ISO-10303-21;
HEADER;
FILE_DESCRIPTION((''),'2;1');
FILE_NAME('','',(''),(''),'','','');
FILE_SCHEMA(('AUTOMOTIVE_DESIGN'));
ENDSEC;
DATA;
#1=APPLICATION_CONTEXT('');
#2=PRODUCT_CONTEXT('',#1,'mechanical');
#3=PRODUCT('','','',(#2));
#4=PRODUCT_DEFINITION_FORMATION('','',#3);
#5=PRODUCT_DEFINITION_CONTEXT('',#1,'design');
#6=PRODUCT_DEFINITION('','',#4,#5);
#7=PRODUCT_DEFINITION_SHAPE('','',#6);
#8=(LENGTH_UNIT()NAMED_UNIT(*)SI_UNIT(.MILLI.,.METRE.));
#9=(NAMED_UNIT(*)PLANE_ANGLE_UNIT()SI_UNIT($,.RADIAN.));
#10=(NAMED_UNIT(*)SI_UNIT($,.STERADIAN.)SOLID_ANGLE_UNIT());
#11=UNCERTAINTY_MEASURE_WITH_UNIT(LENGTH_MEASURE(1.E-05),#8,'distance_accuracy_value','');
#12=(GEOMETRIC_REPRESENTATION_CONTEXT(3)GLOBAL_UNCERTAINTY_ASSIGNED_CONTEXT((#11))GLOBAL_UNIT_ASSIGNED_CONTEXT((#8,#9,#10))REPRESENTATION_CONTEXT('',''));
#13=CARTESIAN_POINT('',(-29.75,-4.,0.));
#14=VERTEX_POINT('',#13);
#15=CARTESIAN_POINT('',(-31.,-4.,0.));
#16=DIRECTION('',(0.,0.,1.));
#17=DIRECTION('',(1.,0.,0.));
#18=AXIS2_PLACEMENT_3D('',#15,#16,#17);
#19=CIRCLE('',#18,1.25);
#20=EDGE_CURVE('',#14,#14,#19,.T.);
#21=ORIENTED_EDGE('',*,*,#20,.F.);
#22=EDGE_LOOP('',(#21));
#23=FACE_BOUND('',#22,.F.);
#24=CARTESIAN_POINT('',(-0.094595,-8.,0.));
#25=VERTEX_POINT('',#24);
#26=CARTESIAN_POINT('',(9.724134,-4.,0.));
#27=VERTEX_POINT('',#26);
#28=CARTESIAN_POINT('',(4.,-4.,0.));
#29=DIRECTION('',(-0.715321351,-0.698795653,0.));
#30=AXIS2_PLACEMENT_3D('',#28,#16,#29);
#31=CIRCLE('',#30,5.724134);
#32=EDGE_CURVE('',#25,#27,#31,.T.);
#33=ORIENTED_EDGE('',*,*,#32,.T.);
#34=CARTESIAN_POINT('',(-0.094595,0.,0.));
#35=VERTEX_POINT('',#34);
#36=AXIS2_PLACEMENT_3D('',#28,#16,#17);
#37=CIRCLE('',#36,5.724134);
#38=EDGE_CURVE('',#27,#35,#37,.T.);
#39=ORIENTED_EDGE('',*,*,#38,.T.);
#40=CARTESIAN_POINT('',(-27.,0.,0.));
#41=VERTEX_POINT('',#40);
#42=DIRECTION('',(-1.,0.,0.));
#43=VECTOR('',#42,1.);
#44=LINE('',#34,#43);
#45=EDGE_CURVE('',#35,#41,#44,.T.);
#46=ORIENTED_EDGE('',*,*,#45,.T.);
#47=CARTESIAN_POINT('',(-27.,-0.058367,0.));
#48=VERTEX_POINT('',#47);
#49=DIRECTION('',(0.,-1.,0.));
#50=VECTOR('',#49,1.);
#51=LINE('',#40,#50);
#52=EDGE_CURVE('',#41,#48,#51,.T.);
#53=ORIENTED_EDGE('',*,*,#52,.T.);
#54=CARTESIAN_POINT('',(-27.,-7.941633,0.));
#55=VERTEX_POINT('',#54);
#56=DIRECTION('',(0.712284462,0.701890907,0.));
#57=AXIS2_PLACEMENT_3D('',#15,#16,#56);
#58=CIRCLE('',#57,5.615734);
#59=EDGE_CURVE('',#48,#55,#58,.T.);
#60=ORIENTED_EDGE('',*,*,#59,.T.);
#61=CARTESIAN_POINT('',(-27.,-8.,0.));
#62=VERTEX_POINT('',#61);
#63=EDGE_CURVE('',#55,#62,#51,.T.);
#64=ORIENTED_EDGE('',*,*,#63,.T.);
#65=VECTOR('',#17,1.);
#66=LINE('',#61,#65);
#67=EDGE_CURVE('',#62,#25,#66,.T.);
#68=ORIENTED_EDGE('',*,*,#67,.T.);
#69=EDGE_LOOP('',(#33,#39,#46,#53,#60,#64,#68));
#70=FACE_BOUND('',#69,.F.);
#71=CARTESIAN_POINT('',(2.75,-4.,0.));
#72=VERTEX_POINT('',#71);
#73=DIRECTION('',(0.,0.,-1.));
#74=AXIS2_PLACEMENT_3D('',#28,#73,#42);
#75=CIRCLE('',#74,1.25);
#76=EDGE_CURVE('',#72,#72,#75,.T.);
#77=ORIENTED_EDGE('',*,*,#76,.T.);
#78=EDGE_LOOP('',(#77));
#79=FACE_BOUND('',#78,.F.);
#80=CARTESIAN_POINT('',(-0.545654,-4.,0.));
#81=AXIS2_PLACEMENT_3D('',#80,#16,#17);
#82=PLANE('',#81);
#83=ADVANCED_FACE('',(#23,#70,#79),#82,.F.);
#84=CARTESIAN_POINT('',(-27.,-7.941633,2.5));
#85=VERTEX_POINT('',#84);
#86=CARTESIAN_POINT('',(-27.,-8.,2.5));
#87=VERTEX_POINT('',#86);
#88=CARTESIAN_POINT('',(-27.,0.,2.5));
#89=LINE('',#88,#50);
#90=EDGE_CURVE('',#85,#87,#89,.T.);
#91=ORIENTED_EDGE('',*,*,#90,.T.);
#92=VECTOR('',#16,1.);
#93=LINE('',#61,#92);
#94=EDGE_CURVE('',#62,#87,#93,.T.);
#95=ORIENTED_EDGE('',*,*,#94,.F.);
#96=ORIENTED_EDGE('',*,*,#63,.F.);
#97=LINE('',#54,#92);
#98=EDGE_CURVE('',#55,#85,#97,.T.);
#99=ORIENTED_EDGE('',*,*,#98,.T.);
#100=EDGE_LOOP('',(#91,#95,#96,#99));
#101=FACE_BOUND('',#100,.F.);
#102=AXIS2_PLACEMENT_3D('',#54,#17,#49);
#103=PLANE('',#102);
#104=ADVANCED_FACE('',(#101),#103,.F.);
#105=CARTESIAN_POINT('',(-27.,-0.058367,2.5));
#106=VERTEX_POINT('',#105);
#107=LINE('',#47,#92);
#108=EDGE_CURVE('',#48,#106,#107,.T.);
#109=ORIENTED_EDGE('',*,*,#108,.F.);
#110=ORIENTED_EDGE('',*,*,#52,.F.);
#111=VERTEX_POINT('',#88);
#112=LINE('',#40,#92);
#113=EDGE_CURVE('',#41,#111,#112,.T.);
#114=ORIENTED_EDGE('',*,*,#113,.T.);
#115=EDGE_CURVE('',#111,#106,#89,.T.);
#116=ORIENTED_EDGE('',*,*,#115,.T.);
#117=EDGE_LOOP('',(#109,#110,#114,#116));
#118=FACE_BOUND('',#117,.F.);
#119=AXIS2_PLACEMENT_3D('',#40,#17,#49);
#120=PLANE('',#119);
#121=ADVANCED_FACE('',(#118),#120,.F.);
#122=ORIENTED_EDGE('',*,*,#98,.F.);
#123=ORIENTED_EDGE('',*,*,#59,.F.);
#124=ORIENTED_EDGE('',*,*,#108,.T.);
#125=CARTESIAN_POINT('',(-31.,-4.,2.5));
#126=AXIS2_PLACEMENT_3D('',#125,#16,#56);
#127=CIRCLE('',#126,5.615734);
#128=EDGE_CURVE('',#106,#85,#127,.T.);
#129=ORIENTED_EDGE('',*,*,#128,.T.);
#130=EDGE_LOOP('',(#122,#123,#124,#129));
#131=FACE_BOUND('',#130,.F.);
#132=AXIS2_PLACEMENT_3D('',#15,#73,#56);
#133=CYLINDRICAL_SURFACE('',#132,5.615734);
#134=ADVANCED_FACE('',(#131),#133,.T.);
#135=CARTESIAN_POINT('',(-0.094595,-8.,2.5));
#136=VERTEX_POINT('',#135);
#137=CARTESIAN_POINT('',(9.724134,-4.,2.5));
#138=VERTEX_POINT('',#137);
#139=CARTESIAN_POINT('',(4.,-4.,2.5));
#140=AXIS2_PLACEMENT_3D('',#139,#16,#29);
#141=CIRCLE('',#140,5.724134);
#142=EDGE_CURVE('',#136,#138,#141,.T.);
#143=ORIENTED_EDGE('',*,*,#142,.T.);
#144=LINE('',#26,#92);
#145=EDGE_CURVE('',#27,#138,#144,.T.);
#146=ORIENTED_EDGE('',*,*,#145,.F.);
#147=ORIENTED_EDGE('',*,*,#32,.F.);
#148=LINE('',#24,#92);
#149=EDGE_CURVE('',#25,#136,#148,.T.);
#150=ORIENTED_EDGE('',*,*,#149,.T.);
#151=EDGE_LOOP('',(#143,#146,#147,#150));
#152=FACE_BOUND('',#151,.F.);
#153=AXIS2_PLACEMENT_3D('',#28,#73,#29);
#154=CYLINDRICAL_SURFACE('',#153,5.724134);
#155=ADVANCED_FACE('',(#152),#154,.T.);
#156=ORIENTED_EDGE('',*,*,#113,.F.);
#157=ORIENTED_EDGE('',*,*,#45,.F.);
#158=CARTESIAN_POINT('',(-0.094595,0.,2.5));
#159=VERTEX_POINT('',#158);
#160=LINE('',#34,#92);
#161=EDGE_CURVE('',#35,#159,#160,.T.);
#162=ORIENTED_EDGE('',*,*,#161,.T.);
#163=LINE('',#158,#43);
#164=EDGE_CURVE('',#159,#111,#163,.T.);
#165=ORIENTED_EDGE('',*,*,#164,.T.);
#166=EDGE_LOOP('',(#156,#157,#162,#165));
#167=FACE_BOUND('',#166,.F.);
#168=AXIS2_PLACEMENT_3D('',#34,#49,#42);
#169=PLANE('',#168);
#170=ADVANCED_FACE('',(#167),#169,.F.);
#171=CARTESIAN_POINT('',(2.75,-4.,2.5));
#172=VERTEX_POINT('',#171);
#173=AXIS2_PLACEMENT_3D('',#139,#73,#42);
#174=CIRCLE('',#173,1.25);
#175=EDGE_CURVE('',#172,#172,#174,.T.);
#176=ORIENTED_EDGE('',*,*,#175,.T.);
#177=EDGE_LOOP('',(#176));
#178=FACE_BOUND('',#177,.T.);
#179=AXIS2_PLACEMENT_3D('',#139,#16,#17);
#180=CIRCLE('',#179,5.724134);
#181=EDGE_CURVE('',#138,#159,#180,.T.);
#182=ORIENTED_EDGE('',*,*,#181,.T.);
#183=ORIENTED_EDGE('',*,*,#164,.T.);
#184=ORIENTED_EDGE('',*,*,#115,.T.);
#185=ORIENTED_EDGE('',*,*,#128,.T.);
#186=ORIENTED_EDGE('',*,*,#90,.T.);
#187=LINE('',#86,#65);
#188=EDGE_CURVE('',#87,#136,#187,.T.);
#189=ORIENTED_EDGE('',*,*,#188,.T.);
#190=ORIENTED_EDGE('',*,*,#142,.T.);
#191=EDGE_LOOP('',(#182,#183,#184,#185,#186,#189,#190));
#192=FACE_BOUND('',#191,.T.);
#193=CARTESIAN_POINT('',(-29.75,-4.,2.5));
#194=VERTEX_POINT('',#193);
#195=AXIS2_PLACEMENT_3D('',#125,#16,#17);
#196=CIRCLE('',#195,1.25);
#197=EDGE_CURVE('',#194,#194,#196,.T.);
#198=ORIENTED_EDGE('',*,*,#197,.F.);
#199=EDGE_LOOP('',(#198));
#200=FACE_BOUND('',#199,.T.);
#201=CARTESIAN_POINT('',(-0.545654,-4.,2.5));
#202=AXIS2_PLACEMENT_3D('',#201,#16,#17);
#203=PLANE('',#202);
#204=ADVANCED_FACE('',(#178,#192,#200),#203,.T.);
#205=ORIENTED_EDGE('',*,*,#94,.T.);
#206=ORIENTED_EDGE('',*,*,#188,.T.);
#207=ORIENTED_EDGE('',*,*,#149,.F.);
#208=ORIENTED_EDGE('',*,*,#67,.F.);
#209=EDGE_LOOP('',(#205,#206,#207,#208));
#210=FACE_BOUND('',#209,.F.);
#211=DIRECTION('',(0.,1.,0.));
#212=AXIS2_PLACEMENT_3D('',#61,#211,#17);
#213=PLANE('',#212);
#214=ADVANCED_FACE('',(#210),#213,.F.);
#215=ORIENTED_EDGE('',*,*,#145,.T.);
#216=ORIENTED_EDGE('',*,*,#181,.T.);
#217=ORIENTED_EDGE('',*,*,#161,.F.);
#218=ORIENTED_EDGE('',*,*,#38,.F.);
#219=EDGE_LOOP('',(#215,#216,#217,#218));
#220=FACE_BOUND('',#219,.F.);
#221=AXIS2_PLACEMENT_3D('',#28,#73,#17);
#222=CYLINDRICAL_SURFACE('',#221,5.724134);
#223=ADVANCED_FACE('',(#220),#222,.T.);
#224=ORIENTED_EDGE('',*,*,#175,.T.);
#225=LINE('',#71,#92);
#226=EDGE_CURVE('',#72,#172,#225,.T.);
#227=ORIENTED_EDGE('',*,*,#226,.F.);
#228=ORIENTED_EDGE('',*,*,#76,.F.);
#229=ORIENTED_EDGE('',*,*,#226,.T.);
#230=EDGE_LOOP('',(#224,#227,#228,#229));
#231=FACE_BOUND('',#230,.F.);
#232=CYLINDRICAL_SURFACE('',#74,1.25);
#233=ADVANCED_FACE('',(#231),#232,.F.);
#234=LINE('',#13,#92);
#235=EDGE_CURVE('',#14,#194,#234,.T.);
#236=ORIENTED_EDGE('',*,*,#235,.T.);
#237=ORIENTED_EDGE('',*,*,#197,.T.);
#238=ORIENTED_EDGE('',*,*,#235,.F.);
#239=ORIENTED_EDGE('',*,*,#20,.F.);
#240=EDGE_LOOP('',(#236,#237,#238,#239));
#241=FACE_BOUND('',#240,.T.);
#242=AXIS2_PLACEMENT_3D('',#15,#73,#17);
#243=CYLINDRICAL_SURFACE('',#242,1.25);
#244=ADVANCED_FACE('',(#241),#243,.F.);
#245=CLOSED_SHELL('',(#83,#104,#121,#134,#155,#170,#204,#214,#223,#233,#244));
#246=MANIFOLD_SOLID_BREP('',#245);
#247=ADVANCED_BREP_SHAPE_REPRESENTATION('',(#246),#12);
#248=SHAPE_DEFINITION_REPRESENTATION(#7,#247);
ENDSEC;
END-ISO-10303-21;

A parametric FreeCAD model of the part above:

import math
import FreeCAD as App
import Part
import Sketcher
from FreeCAD import Vector

doc = App.newDocument("Part")
body = doc.addObject("PartDesign::Body", "Body")

sketch1 = body.newObject("Sketcher::SketchObject", "Sketch")
sketch1.AttachmentSupport = (doc.getObject("XY_Plane"), [""])
sketch1.MapMode = "FlatFace"
sketch1.addGeometry(Part.ArcOfCircle(Part.Circle(Vector(4, -4, 0), Vector(0, 0, 1), 5.72), math.radians(0), math.radians(136)), False)
sketch1.addGeometry(Part.LineSegment(Vector(-0.09, 0, 0), Vector(-27, 0, 0)), False)
sketch1.addGeometry(Part.LineSegment(Vector(-27, 0, 0), Vector(-27, -0.06, 0)), False)
sketch1.addGeometry(Part.ArcOfCircle(Part.Circle(Vector(-31, -4, 0), Vector(0, 0, 1), 5.62), math.radians(45), math.radians(315)), False)
sketch1.addGeometry(Part.LineSegment(Vector(-27, -7.94, 0), Vector(-27, -8, 0)), False)
sketch1.addGeometry(Part.LineSegment(Vector(-27, -8, 0), Vector(-0.09, -8, 0)), False)
sketch1.addGeometry(Part.ArcOfCircle(Part.Circle(Vector(4, -4, 0), Vector(0, 0, 1), 5.72), math.radians(-136), math.radians(0)), False)
sketch1.addGeometry(Part.Circle(Vector(-31, -4, 0), Vector(0, 0, 1), 1.25), False)
sketch1.addGeometry(Part.Circle(Vector(4, -4, 0), Vector(0, 0, 1), 1.25), False)
sketch1.addConstraint(Sketcher.Constraint("Coincident", 0, 2, 1, 1))
sketch1.addConstraint(Sketcher.Constraint("Coincident", 1, 2, 2, 1))
sketch1.addConstraint(Sketcher.Constraint("Coincident", 2, 2, 3, 1))
sketch1.addConstraint(Sketcher.Constraint("Coincident", 3, 2, 4, 1))
sketch1.addConstraint(Sketcher.Constraint("Coincident", 4, 2, 5, 1))
sketch1.addConstraint(Sketcher.Constraint("Coincident", 5, 2, 6, 1))
sketch1.addConstraint(Sketcher.Constraint("Tangent", 6, 2, 0, 1))
sketch1.addConstraint(Sketcher.Constraint("Horizontal", 1))
sketch1.addConstraint(Sketcher.Constraint("Vertical", 2))
sketch1.addConstraint(Sketcher.Constraint("Vertical", 4))
sketch1.addConstraint(Sketcher.Constraint("Horizontal", 5))
sketch1.addConstraint(Sketcher.Constraint("Coincident", 7, 3, 3, 3))
sketch1.addConstraint(Sketcher.Constraint("Coincident", 8, 3, 0, 3))
sketch1.addConstraint(Sketcher.Constraint("Equal", 0, 6))
sketch1.addConstraint(Sketcher.Constraint("Equal", 7, 8))
sketch1.addConstraint(Sketcher.Constraint("PointOnObject", 0, 2, -1))
sketch1.addConstraint(Sketcher.Constraint("Horizontal", 0, 3, 3, 3))
sketch1.addConstraint(Sketcher.Constraint("Horizontal", 8, 3, 6, 2))
sketch1.addConstraint(Sketcher.Constraint("Vertical", 2, 2, 3, 2))
sketch1.addConstraint(Sketcher.Constraint("Vertical", 0, 2, 5, 2))
sketch1.addConstraint(Sketcher.Constraint("Diameter", 7, 2.5))
sketch1.addConstraint(Sketcher.Constraint("DistanceX", -1, 1, 0, 3, 4.0))
sketch1.addConstraint(Sketcher.Constraint("DistanceY", 0, 3, -1, 1, 4.0))
sketch1.addConstraint(Sketcher.Constraint("DistanceX", 3, 3, -1, 1, 31.0))
sketch1.addConstraint(Sketcher.Constraint("DistanceX", 1, 2, -1, 1, 27.0))
sketch1.addConstraint(Sketcher.Constraint("Radius", 0, 5.724134))
sketch1.addConstraint(Sketcher.Constraint("Radius", 3, 5.615734))
pad1 = body.newObject("PartDesign::Pad", "Pad")
pad1.Profile = sketch1
pad1.Length = 2.5

doc.recompute()
